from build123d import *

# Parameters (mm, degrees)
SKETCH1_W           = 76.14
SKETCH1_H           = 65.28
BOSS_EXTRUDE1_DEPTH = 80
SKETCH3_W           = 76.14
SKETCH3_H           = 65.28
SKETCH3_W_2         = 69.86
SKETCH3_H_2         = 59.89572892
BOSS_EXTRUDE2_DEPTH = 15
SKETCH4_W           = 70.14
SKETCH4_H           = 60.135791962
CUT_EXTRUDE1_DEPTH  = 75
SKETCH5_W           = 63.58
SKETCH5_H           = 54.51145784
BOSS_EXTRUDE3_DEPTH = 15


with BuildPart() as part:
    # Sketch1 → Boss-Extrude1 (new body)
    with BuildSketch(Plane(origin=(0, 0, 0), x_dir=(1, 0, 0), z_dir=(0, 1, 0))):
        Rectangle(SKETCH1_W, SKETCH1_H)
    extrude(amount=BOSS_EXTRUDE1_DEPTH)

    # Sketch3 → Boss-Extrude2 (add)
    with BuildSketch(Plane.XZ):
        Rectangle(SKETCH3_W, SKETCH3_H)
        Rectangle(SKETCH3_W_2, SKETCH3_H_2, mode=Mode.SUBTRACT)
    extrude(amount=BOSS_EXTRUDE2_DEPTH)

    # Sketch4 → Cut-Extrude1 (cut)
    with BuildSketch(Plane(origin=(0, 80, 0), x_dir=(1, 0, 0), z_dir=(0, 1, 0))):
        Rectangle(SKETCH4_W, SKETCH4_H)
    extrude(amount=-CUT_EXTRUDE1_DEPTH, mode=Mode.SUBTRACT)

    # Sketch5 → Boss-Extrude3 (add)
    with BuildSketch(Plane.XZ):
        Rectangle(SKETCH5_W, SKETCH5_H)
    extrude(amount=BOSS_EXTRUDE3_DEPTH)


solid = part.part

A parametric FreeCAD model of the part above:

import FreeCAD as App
import Part
import Sketcher

V = App.Vector
Q = App.Units.Quantity


def add_polygon(sketch, points):
    """Adds a closed chain of lines whose ends are joined by coincident constraints."""
    first, n = sketch.GeometryCount, len(points)
    for a, b in zip(points, points[1:] + points[:1]):
        sketch.addGeometry(Part.LineSegment(App.Vector(*a, 0), App.Vector(*b, 0)), False)
    for i in range(n):
        sketch.addConstraint(Sketcher.Constraint("Coincident", first + i, 2, first + (i + 1) % n, 1))

doc = App.newDocument("Part")
params = doc.addObject("Spreadsheet::Sheet", "Params")
for row, (alias, value) in enumerate([
    ("sketch1_width", "76.14 mm"),
    ("sketch1_height", "65.28 mm"),
    ("pad1_length", "80 mm"),
    ("sketch2_width", "76.14 mm"),
    ("sketch2_height", "65.28 mm"),
    ("pad2_length", "15 mm"),
    ("sketch3_width", "70.14 mm"),
    ("pocket1_length", "75 mm"),
    ("sketch4_width", "63.58 mm"),
    ("pad3_length", "15 mm"),
], start=1):
    params.set(f"A{row}", alias)
    params.set(f"B{row}", "=" + value)
    params.setAlias(f"B{row}", alias)

body = doc.addObject("PartDesign::Body", "Body")

# Sketch on XZ plane
sketch1 = body.newObject("Sketcher::SketchObject", "Sketch")
sketch1.AttachmentSupport = (doc.getObject("XZ_Plane"), [""])
sketch1.MapMode = "FlatFace"
add_polygon(sketch1, [(-38, -33), (-38, 33), (38, 33), (38, -33)])  # lines 0-3
sketch1.addConstraint(Sketcher.Constraint("Vertical", 0))
sketch1.addConstraint(Sketcher.Constraint("Horizontal", 1))
sketch1.addConstraint(Sketcher.Constraint("Vertical", 2))
sketch1.addConstraint(Sketcher.Constraint("Horizontal", 3))
sketch1.addConstraint(Sketcher.Constraint("Symmetric", 0, 2, 2, 2, -1, 1))
sketch1.addConstraint(Sketcher.Constraint("DistanceX", 1, 1, 1, 2, Q("76.14 mm")))
sketch1.addConstraint(Sketcher.Constraint("DistanceY", 0, 1, 0, 2, Q("65.28 mm")))
sketch1.setExpression("Constraints[9]", "Params.sketch1_width")
sketch1.setExpression("Constraints[10]", "Params.sketch1_height")
pad1 = body.newObject("PartDesign::Pad", "Pad")
pad1.Profile = sketch1
pad1.setExpression("Length", "Params.pad1_length")
pad1.Reversed = True

# Sketch on XZ plane
sketch2 = body.newObject("Sketcher::SketchObject", "Sketch001")
sketch2.AttachmentSupport = (doc.getObject("XZ_Plane"), [""])
sketch2.MapMode = "FlatFace"
add_polygon(sketch2, [(-38, 33), (-38, -33), (38, -33), (38, 33)])  # lines 0-3
add_polygon(sketch2, [(35, -30), (-35, -30), (-35, 30), (35, 30)])  # lines 4-7
sketch2.addConstraint(Sketcher.Constraint("Vertical", 0))
sketch2.addConstraint(Sketcher.Constraint("Horizontal", 1))
sketch2.addConstraint(Sketcher.Constraint("Vertical", 2))
sketch2.addConstraint(Sketcher.Constraint("Horizontal", 3))
sketch2.addConstraint(Sketcher.Constraint("Horizontal", 4))
sketch2.addConstraint(Sketcher.Constraint("Vertical", 5))
sketch2.addConstraint(Sketcher.Constraint("Horizontal", 6))
sketch2.addConstraint(Sketcher.Constraint("Vertical", 7))
sketch2.addConstraint(Sketcher.Constraint("Symmetric", 0, 2, 2, 2, -1, 1))
sketch2.addConstraint(Sketcher.Constraint("Symmetric", 4, 2, 6, 2, -1, 1))
sketch2.addConstraint(Sketcher.Constraint("DistanceX", 4, 2, 1, 2, Q("73 mm")))
sketch2.addConstraint(Sketcher.Constraint("DistanceX", 1, 1, 1, 2, Q("76.14 mm")))
sketch2.addConstraint(Sketcher.Constraint("DistanceY", 0, 2, 0, 1, Q("65.28 mm")))
sketch2.addConstraint(Sketcher.Constraint("DistanceY", 5, 1, 5, 2, Q("59.895729 mm")))
sketch2.setExpression("Constraints[19]", "Params.sketch2_width")
sketch2.setExpression("Constraints[20]", "Params.sketch2_height")
pad2 = body.newObject("PartDesign::Pad", "Pad001")
pad2.Profile = sketch2
pad2.setExpression("Length", "Params.pad2_length")

# Sketch on XZ plane
sketch3 = body.newObject("Sketcher::SketchObject", "Sketch002")
sketch3.AttachmentSupport = (doc.getObject("XZ_Plane"), [""])
sketch3.MapMode = "FlatFace"
sketch3.AttachmentOffset = App.Placement(V(0, 0, -80), App.Rotation())
add_polygon(sketch3, [(-35, -30), (-35, 30), (35, 30), (35, -30)])  # lines 0-3
sketch3.addConstraint(Sketcher.Constraint("Vertical", 0))
sketch3.addConstraint(Sketcher.Constraint("Horizontal", 1))
sketch3.addConstraint(Sketcher.Constraint("Vertical", 2))
sketch3.addConstraint(Sketcher.Constraint("Horizontal", 3))
sketch3.addConstraint(Sketcher.Constraint("Symmetric", 0, 2, 2, 2, -1, 1))
sketch3.addConstraint(Sketcher.Constraint("DistanceX", 1, 1, 1, 2, Q("70.14 mm")))
sketch3.addConstraint(Sketcher.Constraint("DistanceY", 0, 1, 0, 2, Q("60.135792 mm")))
sketch3.setExpression("Constraints[9]", "Params.sketch3_width")
pocket1 = body.newObject("PartDesign::Pocket", "Pocket")
pocket1.Profile = sketch3
pocket1.setExpression("Length", "Params.pocket1_length")
pocket1.Reversed = True

# Sketch on XZ plane
sketch4 = body.newObject("Sketcher::SketchObject", "Sketch003")
sketch4.AttachmentSupport = (doc.getObject("XZ_Plane"), [""])
sketch4.MapMode = "FlatFace"
add_polygon(sketch4, [(-32, 27), (-32, -27), (32, -27), (32, 27)])  # lines 0-3
sketch4.addConstraint(Sketcher.Constraint("Vertical", 0))
sketch4.addConstraint(Sketcher.Constraint("Horizontal", 1))
sketch4.addConstraint(Sketcher.Constraint("Vertical", 2))
sketch4.addConstraint(Sketcher.Constraint("Horizontal", 3))
sketch4.addConstraint(Sketcher.Constraint("Symmetric", 0, 2, 2, 2, -1, 1))
sketch4.addConstraint(Sketcher.Constraint("DistanceX", 1, 1, 1, 2, Q("63.58 mm")))
sketch4.addConstraint(Sketcher.Constraint("DistanceY", 0, 2, 0, 1, Q("54.511458 mm")))
sketch4.setExpression("Constraints[9]", "Params.sketch4_width")
pad3 = body.newObject("PartDesign::Pad", "Pad002")
pad3.Profile = sketch4
pad3.setExpression("Length", "Params.pad3_length")

doc.recompute()
